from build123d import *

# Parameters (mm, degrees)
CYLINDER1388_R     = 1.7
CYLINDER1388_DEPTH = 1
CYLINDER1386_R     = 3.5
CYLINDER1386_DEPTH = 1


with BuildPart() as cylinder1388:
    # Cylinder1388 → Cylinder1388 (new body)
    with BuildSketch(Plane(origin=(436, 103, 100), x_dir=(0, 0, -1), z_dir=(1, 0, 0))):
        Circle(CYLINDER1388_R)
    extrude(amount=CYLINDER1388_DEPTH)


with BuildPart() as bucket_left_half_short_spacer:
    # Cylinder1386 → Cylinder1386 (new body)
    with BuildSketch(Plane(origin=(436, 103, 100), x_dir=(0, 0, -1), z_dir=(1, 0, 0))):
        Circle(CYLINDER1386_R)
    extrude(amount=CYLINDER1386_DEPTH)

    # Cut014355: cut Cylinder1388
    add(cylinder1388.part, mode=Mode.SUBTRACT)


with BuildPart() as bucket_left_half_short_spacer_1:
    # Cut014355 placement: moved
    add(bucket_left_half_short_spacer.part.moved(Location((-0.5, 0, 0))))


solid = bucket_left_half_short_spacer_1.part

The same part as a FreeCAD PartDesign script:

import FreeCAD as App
import Part
import Sketcher

doc = App.newDocument("Part")
body = doc.addObject("PartDesign::Body", "Body")

# Sketch on YZ plane
sketch1 = body.newObject("Sketcher::SketchObject", "Sketch")
sketch1.AttachmentSupport = (doc.getObject("YZ_Plane"), [""])
sketch1.MapMode = "FlatFace"
sketch1.AttachmentOffset = App.Placement(App.Vector(0, 0, 436), App.Rotation())
sketch1.addGeometry(Part.Circle(App.Vector(103, 100, 0), App.Vector(0, 0, 1), 1.7), False)
sketch1.addConstraint(Sketcher.Constraint("Diameter", 0, 3.4))
sketch1.addConstraint(Sketcher.Constraint("DistanceX", -1, 1, 0, 3, 103.0))
sketch1.addConstraint(Sketcher.Constraint("DistanceY", -1, 1, 0, 3, 100.0))
pad1 = body.newObject("PartDesign::Pad", "Pad")
pad1.Profile = sketch1
pad1.Length = 1
body2 = doc.addObject("PartDesign::Body", "Body001")

# Sketch on YZ plane
sketch2 = body2.newObject("Sketcher::SketchObject", "Sketch001")
sketch2.AttachmentSupport = (doc.getObject("YZ_Plane001"), [""])
sketch2.MapMode = "FlatFace"
sketch2.AttachmentOffset = App.Placement(App.Vector(0, 0, 436), App.Rotation())
sketch2.addGeometry(Part.Circle(App.Vector(103, 100, 0), App.Vector(0, 0, 1), 3.5), False)
sketch2.addConstraint(Sketcher.Constraint("Diameter", 0, 7.0))
sketch2.addConstraint(Sketcher.Constraint("DistanceX", -1, 1, 0, 3, 103.0))
sketch2.addConstraint(Sketcher.Constraint("DistanceY", -1, 1, 0, 3, 100.0))
pad2 = body2.newObject("PartDesign::Pad", "Pad001")
pad2.Profile = sketch2
pad2.Length = 1
doc.recompute()

boolean = body2.newObject("PartDesign::Boolean", "Boolean")
boolean.Type = "Cut"
boolean.addObjects([body])
body3 = doc.addObject("PartDesign::Body", "Body002")
doc.recompute()

body2.Placement = App.Placement(App.Vector(-0.5, 0, 0), App.Rotation(App.Vector(0, 0, 1), 0))
boolean2 = body3.newObject("PartDesign::Boolean", "Boolean001")
boolean2.Type = "Fuse"
boolean2.addObjects([body2])

doc.recompute()
